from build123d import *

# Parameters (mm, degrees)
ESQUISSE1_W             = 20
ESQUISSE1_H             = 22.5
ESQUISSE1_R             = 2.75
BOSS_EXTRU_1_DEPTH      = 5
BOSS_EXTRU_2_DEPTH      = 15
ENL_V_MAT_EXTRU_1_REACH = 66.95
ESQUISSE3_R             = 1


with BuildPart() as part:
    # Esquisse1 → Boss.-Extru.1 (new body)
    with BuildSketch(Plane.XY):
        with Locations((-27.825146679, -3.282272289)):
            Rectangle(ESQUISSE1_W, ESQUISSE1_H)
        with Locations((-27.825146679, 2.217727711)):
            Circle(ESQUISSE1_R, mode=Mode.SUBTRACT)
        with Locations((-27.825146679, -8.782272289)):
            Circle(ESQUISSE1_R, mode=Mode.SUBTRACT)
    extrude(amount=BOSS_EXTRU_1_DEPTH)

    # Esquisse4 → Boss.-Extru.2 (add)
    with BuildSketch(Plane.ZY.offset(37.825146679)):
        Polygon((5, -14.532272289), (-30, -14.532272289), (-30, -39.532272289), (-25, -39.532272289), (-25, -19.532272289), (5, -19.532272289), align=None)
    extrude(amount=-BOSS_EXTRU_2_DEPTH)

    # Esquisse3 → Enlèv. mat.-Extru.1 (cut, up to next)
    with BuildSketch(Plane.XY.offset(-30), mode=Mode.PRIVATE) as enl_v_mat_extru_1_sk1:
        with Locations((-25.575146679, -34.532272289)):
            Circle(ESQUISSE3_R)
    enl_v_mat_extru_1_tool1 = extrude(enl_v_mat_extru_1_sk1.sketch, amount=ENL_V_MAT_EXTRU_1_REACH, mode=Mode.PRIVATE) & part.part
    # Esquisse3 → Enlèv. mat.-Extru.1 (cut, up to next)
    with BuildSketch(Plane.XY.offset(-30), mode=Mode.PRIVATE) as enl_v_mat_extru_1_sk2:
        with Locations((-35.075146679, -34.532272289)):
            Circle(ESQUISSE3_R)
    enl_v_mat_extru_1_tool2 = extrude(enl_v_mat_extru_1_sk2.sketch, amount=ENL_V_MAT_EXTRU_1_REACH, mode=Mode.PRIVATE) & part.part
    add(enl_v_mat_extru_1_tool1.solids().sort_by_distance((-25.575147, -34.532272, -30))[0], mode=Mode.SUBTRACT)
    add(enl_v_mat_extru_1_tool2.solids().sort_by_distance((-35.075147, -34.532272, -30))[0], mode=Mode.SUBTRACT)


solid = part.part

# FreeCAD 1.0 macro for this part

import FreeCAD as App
import Part
import Sketcher

V = App.Vector
Q = App.Units.Quantity


def add_polygon(sketch, points):
    """Adds a closed chain of lines whose ends are joined by coincident constraints."""
    first, n = sketch.GeometryCount, len(points)
    for a, b in zip(points, points[1:] + points[:1]):
        sketch.addGeometry(Part.LineSegment(App.Vector(*a, 0), App.Vector(*b, 0)), False)
    for i in range(n):
        sketch.addConstraint(Sketcher.Constraint("Coincident", first + i, 2, first + (i + 1) % n, 1))

doc = App.newDocument("Part")
body = doc.addObject("PartDesign::Body", "Body")

# Sketch on XY plane
sketch1 = body.newObject("Sketcher::SketchObject", "Sketch")
sketch1.AttachmentSupport = (doc.getObject("XY_Plane"), [""])
sketch1.MapMode = "FlatFace"
add_polygon(sketch1, [(-37.8, 8), (-37.8, -14.5), (-17.8, -14.5), (-17.8, 8)])  # lines 0-3
sketch1.addGeometry(Part.Circle(V(-27.8, -8.8, 0), V(0, 0, 1), 2.8), False)  # 4
sketch1.addGeometry(Part.Circle(V(-27.8, 2.2, 0), V(0, 0, 1), 2.8), False)  # 5
sketch1.addConstraint([
    Sketcher.Constraint("Vertical", 0),
    Sketcher.Constraint("Horizontal", 1),
    Sketcher.Constraint("Vertical", 2),
    Sketcher.Constraint("Horizontal", 3),
    Sketcher.Constraint("Equal", 4, 5),
    Sketcher.Constraint("Vertical", 4, 3, 5, 3),
    Sketcher.Constraint("Diameter", 4, Q("5.5 mm")),
    Sketcher.Constraint("DistanceX", 1, 1, 1, 2, Q("20 mm")),
    Sketcher.Constraint("DistanceY", 0, 2, 0, 1, Q("22.5 mm")),
    Sketcher.Constraint("DistanceY", 4, 3, 5, 3, Q("11 mm")),
    Sketcher.Constraint("DistanceX", 0, 2, 4, 3, Q("10 mm")),
    Sketcher.Constraint("DistanceY", 0, 2, 4, 3, Q("5.75 mm")),
    Sketcher.Constraint("DistanceX", 4, 3, -1, 1, Q("27.825147 mm")),
    Sketcher.Constraint("DistanceY", 4, 3, -1, 1, Q("8.782272 mm")),
])
pad1 = body.newObject("PartDesign::Pad", "Pad")
pad1.Profile = sketch1
pad1.Length = 5

# Sketch on YZ plane
sketch2 = body.newObject("Sketcher::SketchObject", "Sketch001")
sketch2.AttachmentSupport = (doc.getObject("YZ_Plane"), [""])
sketch2.MapMode = "FlatFace"
sketch2.AttachmentOffset = App.Placement(V(0, 0, -37.825147), App.Rotation())
add_polygon(sketch2, [(-15, 5), (-15, -30), (-40, -30), (-40, -25), (-20, -25), (-20, 5)])  # lines 0-5
sketch2.addConstraint([
    Sketcher.Constraint("Vertical", 0),
    Sketcher.Constraint("Horizontal", 1),
    Sketcher.Constraint("Vertical", 2),
    Sketcher.Constraint("Horizontal", 3),
    Sketcher.Constraint("Vertical", 4),
    Sketcher.Constraint("Horizontal", 5),
    Sketcher.Constraint("Equal", 5, 2),
    Sketcher.Constraint("DistanceX", 1, 2, 1, 1, Q("25 mm")),
    Sketcher.Constraint("DistanceX", 3, 1, 3, 2, Q("20 mm")),
    Sketcher.Constraint("DistanceY", 0, 2, 0, 1, Q("35 mm")),
    Sketcher.Constraint("DistanceY", 0, 2, -1, 1, Q("30 mm")),
    Sketcher.Constraint("DistanceX", 0, 2, -1, 1, Q("14.532272 mm")),
])
pad2 = body.newObject("PartDesign::Pad", "Pad001")
pad2.Profile = sketch2
pad2.Length = 15

# Sketch on XY plane
sketch3 = body.newObject("Sketcher::SketchObject", "Sketch002")
sketch3.AttachmentSupport = (doc.getObject("XY_Plane"), [""])
sketch3.MapMode = "FlatFace"
sketch3.AttachmentOffset = App.Placement(V(0, 0, -30), App.Rotation())
sketch3.addGeometry(Part.Circle(V(-25.6, -34.5, 0), V(0, 0, 1), 1), False)
sketch3.addConstraint([
    Sketcher.Constraint("Diameter", 0, Q("2 mm")),
    Sketcher.Constraint("DistanceX", 0, 3, -1, 1, Q("25.575147 mm")),
    Sketcher.Constraint("DistanceY", 0, 3, -1, 1, Q("34.532272 mm")),
])
pocket1 = body.newObject("PartDesign::Pocket", "Pocket")
pocket1.Profile = sketch3
pocket1.Type = "UpToFirst"
pocket1.Reversed = True

# Sketch on XY plane
sketch4 = body.newObject("Sketcher::SketchObject", "Sketch003")
sketch4.AttachmentSupport = (doc.getObject("XY_Plane"), [""])
sketch4.MapMode = "FlatFace"
sketch4.AttachmentOffset = App.Placement(V(0, 0, -30), App.Rotation())
sketch4.addGeometry(Part.Circle(V(-35.1, -34.5, 0), V(0, 0, 1), 1), False)
sketch4.addConstraint([
    Sketcher.Constraint("Diameter", 0, Q("2 mm")),
    Sketcher.Constraint("DistanceX", 0, 3, -1, 1, Q("35.075147 mm")),
    Sketcher.Constraint("DistanceY", 0, 3, -1, 1, Q("34.532272 mm")),
])
pocket2 = body.newObject("PartDesign::Pocket", "Pocket001")
pocket2.Profile = sketch4
pocket2.Type = "UpToFirst"
pocket2.Reversed = True

doc.recompute()
